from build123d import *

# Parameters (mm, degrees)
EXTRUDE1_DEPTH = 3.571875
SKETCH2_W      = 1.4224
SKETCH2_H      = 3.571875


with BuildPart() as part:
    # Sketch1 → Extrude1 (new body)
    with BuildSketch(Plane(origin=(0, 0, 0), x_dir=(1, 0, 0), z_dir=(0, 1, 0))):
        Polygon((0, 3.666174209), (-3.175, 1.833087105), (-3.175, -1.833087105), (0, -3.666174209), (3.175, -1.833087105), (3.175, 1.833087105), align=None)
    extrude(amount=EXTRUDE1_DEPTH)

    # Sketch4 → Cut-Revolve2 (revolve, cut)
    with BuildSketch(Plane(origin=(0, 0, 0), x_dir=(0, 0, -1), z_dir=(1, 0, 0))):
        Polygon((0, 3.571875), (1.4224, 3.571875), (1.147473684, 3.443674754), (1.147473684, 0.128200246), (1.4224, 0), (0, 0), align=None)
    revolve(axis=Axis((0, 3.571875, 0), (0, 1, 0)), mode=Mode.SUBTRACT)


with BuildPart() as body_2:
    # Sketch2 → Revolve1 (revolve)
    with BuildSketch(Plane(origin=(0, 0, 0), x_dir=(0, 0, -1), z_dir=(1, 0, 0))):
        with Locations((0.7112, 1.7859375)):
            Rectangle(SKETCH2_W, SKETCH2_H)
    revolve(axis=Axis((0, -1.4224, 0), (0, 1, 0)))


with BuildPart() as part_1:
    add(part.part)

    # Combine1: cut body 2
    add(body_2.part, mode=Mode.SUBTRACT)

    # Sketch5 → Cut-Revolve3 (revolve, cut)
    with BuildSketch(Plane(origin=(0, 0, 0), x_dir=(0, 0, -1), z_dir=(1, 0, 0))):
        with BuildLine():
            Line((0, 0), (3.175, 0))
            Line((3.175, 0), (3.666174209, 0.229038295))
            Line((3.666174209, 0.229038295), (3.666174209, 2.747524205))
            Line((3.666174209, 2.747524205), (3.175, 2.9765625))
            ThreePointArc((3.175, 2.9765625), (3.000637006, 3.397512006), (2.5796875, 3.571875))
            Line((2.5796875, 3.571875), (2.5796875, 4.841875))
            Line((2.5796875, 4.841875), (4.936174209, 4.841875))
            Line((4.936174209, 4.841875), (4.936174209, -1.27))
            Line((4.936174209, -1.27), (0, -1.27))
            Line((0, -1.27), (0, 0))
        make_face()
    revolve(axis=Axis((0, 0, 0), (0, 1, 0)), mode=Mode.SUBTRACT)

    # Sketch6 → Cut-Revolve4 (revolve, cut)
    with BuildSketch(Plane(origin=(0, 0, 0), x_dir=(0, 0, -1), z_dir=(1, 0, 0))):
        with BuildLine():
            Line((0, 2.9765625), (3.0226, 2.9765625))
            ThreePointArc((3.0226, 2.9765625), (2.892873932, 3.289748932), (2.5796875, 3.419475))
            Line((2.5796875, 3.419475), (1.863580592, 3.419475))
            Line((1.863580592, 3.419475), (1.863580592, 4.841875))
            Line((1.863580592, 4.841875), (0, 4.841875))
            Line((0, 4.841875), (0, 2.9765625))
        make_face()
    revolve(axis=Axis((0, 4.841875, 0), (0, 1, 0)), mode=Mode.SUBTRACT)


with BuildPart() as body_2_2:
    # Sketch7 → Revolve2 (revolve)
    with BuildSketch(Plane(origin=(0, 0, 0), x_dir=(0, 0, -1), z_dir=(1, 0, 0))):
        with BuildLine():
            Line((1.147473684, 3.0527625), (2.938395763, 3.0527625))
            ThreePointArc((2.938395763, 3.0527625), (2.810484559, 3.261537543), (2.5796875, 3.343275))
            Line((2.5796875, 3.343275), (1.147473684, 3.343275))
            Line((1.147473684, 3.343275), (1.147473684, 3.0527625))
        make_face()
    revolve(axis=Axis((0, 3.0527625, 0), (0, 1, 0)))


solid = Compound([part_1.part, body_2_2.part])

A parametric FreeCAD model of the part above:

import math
import FreeCAD as App
import Part
import Sketcher

V = App.Vector
Q = App.Units.Quantity


def add_polygon(sketch, points):
    """Adds a closed chain of lines whose ends are joined by coincident constraints."""
    first, n = sketch.GeometryCount, len(points)
    for a, b in zip(points, points[1:] + points[:1]):
        sketch.addGeometry(Part.LineSegment(App.Vector(*a, 0), App.Vector(*b, 0)), False)
    for i in range(n):
        sketch.addConstraint(Sketcher.Constraint("Coincident", first + i, 2, first + (i + 1) % n, 1))

doc = App.newDocument("Part")
body = doc.addObject("PartDesign::Body", "Body")

sketch1 = body.newObject("Sketcher::SketchObject", "Sketch")
sketch1.AttachmentSupport = (doc.getObject("XZ_Plane"), [""])
sketch1.MapMode = "FlatFace"
add_polygon(sketch1, [(0, -3.7), (-3.2, -1.8), (-3.2, 1.8), (0, 3.7), (3.2, 1.8), (3.2, -1.8)])
sketch1.addConstraint(Sketcher.Constraint("Vertical", 1))
sketch1.addConstraint(Sketcher.Constraint("Vertical", 4))
sketch1.addConstraint(Sketcher.Constraint("Symmetric", 0, 2, 3, 2, -1, 1))
sketch1.addConstraint(Sketcher.Constraint("Symmetric", 2, 2, 5, 2, -1, 1))
sketch1.addConstraint(Sketcher.Constraint("PointOnObject", 2, 2, -2))
sketch1.addConstraint(Sketcher.Constraint("Parallel", 2, 5))
sketch1.addConstraint(Sketcher.Constraint("Horizontal", 1, 2, 3, 2))
sketch1.addConstraint(Sketcher.Constraint("Angle", 0, Q("150 deg")))
sketch1.addConstraint(Sketcher.Constraint("DistanceX", 1, 2, 3, 2, Q("0.25 in")))
sketch1.addConstraint(Sketcher.Constraint("DistanceY", 1, 1, 1, 2, 3.666174))
pad1 = body.newObject("PartDesign::Pad", "Pad")
pad1.Profile = sketch1
pad1.Length = Q("0.140625 in")
pad1.Reversed = True

sketch2 = body.newObject("Sketcher::SketchObject", "Sketch001")
sketch2.AttachmentSupport = (doc.getObject("YZ_Plane"), [""])
sketch2.MapMode = "FlatFace"
add_polygon(sketch2, [(3.57, -1.42), (3.57, 0), (0, 0), (0, -1.42), (0.13, -1.15), (3.44, -1.15)])
sketch2.addConstraint(Sketcher.Constraint("Vertical", 0))
sketch2.addConstraint(Sketcher.Constraint("Horizontal", 1))
sketch2.addConstraint(Sketcher.Constraint("Vertical", 2))
sketch2.addConstraint(Sketcher.Constraint("Horizontal", 4))
sketch2.addConstraint(Sketcher.Constraint("Coincident", 1, 2, -1, 1))
sketch2.addConstraint(Sketcher.Constraint("Horizontal", 2, 2, 5, 2))
sketch2.addConstraint(Sketcher.Constraint("Equal", 3, 5))
sketch2.addConstraint(Sketcher.Constraint("Angle", 3, Q("65 deg")))
sketch2.addConstraint(Sketcher.Constraint("DistanceX", 1, 2, 1, 1, Q("0.140625 in")))
sketch2.addConstraint(Sketcher.Constraint("DistanceY", 0, 1, 0, 2, Q("0.056 in")))
sketch2.addConstraint(Sketcher.Constraint("DistanceX", -1, 1, 3, 2, 0.1282))
groove = body.newObject("PartDesign::Groove", "Groove")
groove.Profile = sketch2
groove.ReferenceAxis = (sketch2, ["H_Axis"])
groove.Angle = 360
body2 = doc.addObject("PartDesign::Body", "Body001")

sketch3 = body2.newObject("Sketcher::SketchObject", "Sketch002")
sketch3.AttachmentSupport = (doc.getObject("YZ_Plane001"), [""])
sketch3.MapMode = "FlatFace"
add_polygon(sketch3, [(3.6, 0), (0, 0), (0, -1.4), (3.6, -1.4)])
sketch3.addConstraint(Sketcher.Constraint("Horizontal", 0))
sketch3.addConstraint(Sketcher.Constraint("Vertical", 1))
sketch3.addConstraint(Sketcher.Constraint("Horizontal", 2))
sketch3.addConstraint(Sketcher.Constraint("Vertical", 3))
sketch3.addConstraint(Sketcher.Constraint("Coincident", 0, 2, -1, 1))
sketch3.addConstraint(Sketcher.Constraint("DistanceX", 0, 2, 0, 1, Q("0.140625 in")))
sketch3.addConstraint(Sketcher.Constraint("DistanceY", 1, 2, 1, 1, Q("0.056 in")))
revolution = body2.newObject("PartDesign::Revolution", "Revolution")
revolution.Profile = sketch3
revolution.ReferenceAxis = (sketch3, ["H_Axis"])
revolution.Angle = 360
doc.recompute()

boolean = body.newObject("PartDesign::Boolean", "Boolean")
boolean.Type = "Cut"
boolean.addObjects([body2])

sketch4 = body.newObject("Sketcher::SketchObject", "Sketch003")
sketch4.AttachmentSupport = (doc.getObject("YZ_Plane"), [""])
sketch4.MapMode = "FlatFace"
sketch4.addGeometry(Part.LineSegment(V(0, -3.2, 0), V(0, 0, 0)), False)
sketch4.addGeometry(Part.LineSegment(V(0, 0, 0), V(-1.3, 0, 0)), False)
sketch4.addGeometry(Part.LineSegment(V(-1.3, 0, 0), V(-1.3, -4.9, 0)), False)
sketch4.addGeometry(Part.LineSegment(V(-1.3, -4.9, 0), V(4.8, -4.9, 0)), False)
sketch4.addGeometry(Part.LineSegment(V(4.8, -4.9, 0), V(4.8, -2.6, 0)), False)
sketch4.addGeometry(Part.LineSegment(V(4.8, -2.6, 0), V(3.6, -2.6, 0)), False)
sketch4.addGeometry(Part.ArcOfCircle(Part.Circle(V(3, -2.6, 0), V(0, 0, 1), 0.6), math.radians(-90), math.radians(0)), False)
sketch4.addGeometry(Part.LineSegment(V(3, -3.2, 0), V(2.7, -3.7, 0)), False)
sketch4.addGeometry(Part.LineSegment(V(2.7, -3.7, 0), V(0.2, -3.7, 0)), False)
sketch4.addGeometry(Part.LineSegment(V(0.2, -3.7, 0), V(0, -3.2, 0)), False)
sketch4.addConstraint(Sketcher.Constraint("Coincident", 0, 2, 1, 1))
sketch4.addConstraint(Sketcher.Constraint("Coincident", 1, 2, 2, 1))
sketch4.addConstraint(Sketcher.Constraint("Coincident", 2, 2, 3, 1))
sketch4.addConstraint(Sketcher.Constraint("Coincident", 3, 2, 4, 1))
sketch4.addConstraint(Sketcher.Constraint("Coincident", 4, 2, 5, 1))
sketch4.addConstraint(Sketcher.Constraint("Coincident", 5, 2, 6, 2))
sketch4.addConstraint(Sketcher.Constraint("Coincident", 6, 1, 7, 1))
sketch4.addConstraint(Sketcher.Constraint("Coincident", 7, 2, 8, 1))
sketch4.addConstraint(Sketcher.Constraint("Coincident", 8, 2, 9, 1))
sketch4.addConstraint(Sketcher.Constraint("Coincident", 9, 2, 0, 1))
sketch4.addConstraint(Sketcher.Constraint("Vertical", 0))
sketch4.addConstraint(Sketcher.Constraint("Horizontal", 1))
sketch4.addConstraint(Sketcher.Constraint("Vertical", 2))
sketch4.addConstraint(Sketcher.Constraint("Horizontal", 3))
sketch4.addConstraint(Sketcher.Constraint("Vertical", 4))
sketch4.addConstraint(Sketcher.Constraint("Horizontal", 5))
sketch4.addConstraint(Sketcher.Constraint("Horizontal", 8))
sketch4.addConstraint(Sketcher.Constraint("Coincident", 0, 2, -1, 1))
sketch4.addConstraint(Sketcher.Constraint("Horizontal", 6, 3, 4, 2))
sketch4.addConstraint(Sketcher.Constraint("Horizontal", 6, 1, 9, 2))
sketch4.addConstraint(Sketcher.Constraint("Equal", 1, 5))
sketch4.addConstraint(Sketcher.Constraint("Equal", 7, 9))
sketch4.addConstraint(Sketcher.Constraint("Angle", 7, Q("-115 deg")))
sketch4.addConstraint(Sketcher.Constraint("DistanceX", 1, 2, 1, 1, Q("0.05 in")))
sketch4.addConstraint(Sketcher.Constraint("DistanceY", 0, 1, 0, 2, Q("0.125 in")))
sketch4.addConstraint(Sketcher.Constraint("DistanceY", 3, 2, 7, 2, Q("0.05 in")))
sketch4.addConstraint(Sketcher.Constraint("DistanceX", -1, 1, 5, 2, Q("0.140625 in")))
sketch4.addConstraint(Sketcher.Constraint("Radius", 6, 0.595312))
sketch4.addConstraint(Sketcher.Constraint("Distance", 7, 0.541951))
sketch4.addConstraint(Sketcher.Constraint("DistanceX", 8, 2, 8, 1, 2.518486))
groove2 = body.newObject("PartDesign::Groove", "Groove001")
groove2.Profile = sketch4
groove2.ReferenceAxis = (sketch4, ["H_Axis"])
groove2.Angle = 360

sketch5 = body.newObject("Sketcher::SketchObject", "Sketch004")
sketch5.AttachmentSupport = (doc.getObject("YZ_Plane"), [""])
sketch5.MapMode = "FlatFace"
sketch5.addGeometry(Part.LineSegment(V(2.98, 0, 0), V(2.98, -3.02, 0)), False)
sketch5.addGeometry(Part.ArcOfCircle(Part.Circle(V(2.98, -2.58, 0), V(0, 0, 1), 0.44), math.radians(-90), math.radians(0)), False)
sketch5.addGeometry(Part.LineSegment(V(3.42, -2.58, 0), V(3.42, -1.86, 0)), False)
sketch5.addGeometry(Part.LineSegment(V(3.42, -1.86, 0), V(4.84, -1.86, 0)), False)
sketch5.addGeometry(Part.LineSegment(V(4.84, -1.86, 0), V(4.84, 0, 0)), False)
sketch5.addGeometry(Part.LineSegment(V(4.84, 0, 0), V(2.98, 0, 0)), False)
sketch5.addConstraint(Sketcher.Constraint("Coincident", 0, 2, 1, 1))
sketch5.addConstraint(Sketcher.Constraint("Tangent", 1, 2, 2, 1))
sketch5.addConstraint(Sketcher.Constraint("Coincident", 2, 2, 3, 1))
sketch5.addConstraint(Sketcher.Constraint("Coincident", 3, 2, 4, 1))
sketch5.addConstraint(Sketcher.Constraint("Coincident", 4, 2, 5, 1))
sketch5.addConstraint(Sketcher.Constraint("Coincident", 5, 2, 0, 1))
sketch5.addConstraint(Sketcher.Constraint("Vertical", 0))
sketch5.addConstraint(Sketcher.Constraint("Vertical", 2))
sketch5.addConstraint(Sketcher.Constraint("Horizontal", 3))
sketch5.addConstraint(Sketcher.Constraint("Vertical", 4))
sketch5.addConstraint(Sketcher.Constraint("Horizontal", 5))
sketch5.addConstraint(Sketcher.Constraint("PointOnObject", 4, 2, -1))
sketch5.addConstraint(Sketcher.Constraint("Vertical", 1, 3, 0, 2))
sketch5.addConstraint(Sketcher.Constraint("DistanceX", 3, 1, 3, 2, Q("0.056 in")))
sketch5.addConstraint(Sketcher.Constraint("DistanceY", 0, 2, 0, 1, Q("0.119 in")))
sketch5.addConstraint(Sketcher.Constraint("Radius", 1, 0.442913))
sketch5.addConstraint(Sketcher.Constraint("DistanceY", 4, 1, 4, 2, 1.863581))
sketch5.addConstraint(Sketcher.Constraint("DistanceX", -1, 1, 1, 3, 2.976562))
groove3 = body.newObject("PartDesign::Groove", "Groove002")
groove3.Profile = sketch5
groove3.ReferenceAxis = (sketch5, ["H_Axis"])
groove3.Angle = 360
body3 = doc.addObject("PartDesign::Body", "Body002")

sketch6 = body3.newObject("Sketcher::SketchObject", "Sketch005")
sketch6.AttachmentSupport = (doc.getObject("YZ_Plane002"), [""])
sketch6.MapMode = "FlatFace"
sketch6.addGeometry(Part.LineSegment(V(3.05, -1.15, 0), V(3.05, -2.94, 0)), False)
sketch6.addGeometry(Part.ArcOfCircle(Part.Circle(V(2.98, -2.58, 0), V(0, 0, 1), 0.37), math.radians(-78), math.radians(0)), False)
sketch6.addGeometry(Part.LineSegment(V(3.34, -2.58, 0), V(3.34, -1.15, 0)), False)
sketch6.addGeometry(Part.LineSegment(V(3.34, -1.15, 0), V(3.05, -1.15, 0)), False)
sketch6.addConstraint(Sketcher.Constraint("Coincident", 0, 2, 1, 1))
sketch6.addConstraint(Sketcher.Constraint("Tangent", 1, 2, 2, 1))
sketch6.addConstraint(Sketcher.Constraint("Coincident", 2, 2, 3, 1))
sketch6.addConstraint(Sketcher.Constraint("Coincident", 3, 2, 0, 1))
sketch6.addConstraint(Sketcher.Constraint("Vertical", 0))
sketch6.addConstraint(Sketcher.Constraint("Vertical", 2))
sketch6.addConstraint(Sketcher.Constraint("Horizontal", 3))
sketch6.addConstraint(Sketcher.Constraint("DistanceX", 1, 3, 0, 2, Q("0.003 in")))
sketch6.addConstraint(Sketcher.Constraint("Radius", 1, 0.366713))
sketch6.addConstraint(Sketcher.Constraint("DistanceY", 0, 2, 0, 1, 1.790922))
sketch6.addConstraint(Sketcher.Constraint("DistanceX", -1, 1, 1, 3, 2.976562))
sketch6.addConstraint(Sketcher.Constraint("DistanceY", 1, 3, -1, 1, 2.579687))
revolution2 = body3.newObject("PartDesign::Revolution", "Revolution001")
revolution2.Profile = sketch6
revolution2.ReferenceAxis = (sketch6, ["H_Axis"])
revolution2.Angle = 360

doc.recompute()
